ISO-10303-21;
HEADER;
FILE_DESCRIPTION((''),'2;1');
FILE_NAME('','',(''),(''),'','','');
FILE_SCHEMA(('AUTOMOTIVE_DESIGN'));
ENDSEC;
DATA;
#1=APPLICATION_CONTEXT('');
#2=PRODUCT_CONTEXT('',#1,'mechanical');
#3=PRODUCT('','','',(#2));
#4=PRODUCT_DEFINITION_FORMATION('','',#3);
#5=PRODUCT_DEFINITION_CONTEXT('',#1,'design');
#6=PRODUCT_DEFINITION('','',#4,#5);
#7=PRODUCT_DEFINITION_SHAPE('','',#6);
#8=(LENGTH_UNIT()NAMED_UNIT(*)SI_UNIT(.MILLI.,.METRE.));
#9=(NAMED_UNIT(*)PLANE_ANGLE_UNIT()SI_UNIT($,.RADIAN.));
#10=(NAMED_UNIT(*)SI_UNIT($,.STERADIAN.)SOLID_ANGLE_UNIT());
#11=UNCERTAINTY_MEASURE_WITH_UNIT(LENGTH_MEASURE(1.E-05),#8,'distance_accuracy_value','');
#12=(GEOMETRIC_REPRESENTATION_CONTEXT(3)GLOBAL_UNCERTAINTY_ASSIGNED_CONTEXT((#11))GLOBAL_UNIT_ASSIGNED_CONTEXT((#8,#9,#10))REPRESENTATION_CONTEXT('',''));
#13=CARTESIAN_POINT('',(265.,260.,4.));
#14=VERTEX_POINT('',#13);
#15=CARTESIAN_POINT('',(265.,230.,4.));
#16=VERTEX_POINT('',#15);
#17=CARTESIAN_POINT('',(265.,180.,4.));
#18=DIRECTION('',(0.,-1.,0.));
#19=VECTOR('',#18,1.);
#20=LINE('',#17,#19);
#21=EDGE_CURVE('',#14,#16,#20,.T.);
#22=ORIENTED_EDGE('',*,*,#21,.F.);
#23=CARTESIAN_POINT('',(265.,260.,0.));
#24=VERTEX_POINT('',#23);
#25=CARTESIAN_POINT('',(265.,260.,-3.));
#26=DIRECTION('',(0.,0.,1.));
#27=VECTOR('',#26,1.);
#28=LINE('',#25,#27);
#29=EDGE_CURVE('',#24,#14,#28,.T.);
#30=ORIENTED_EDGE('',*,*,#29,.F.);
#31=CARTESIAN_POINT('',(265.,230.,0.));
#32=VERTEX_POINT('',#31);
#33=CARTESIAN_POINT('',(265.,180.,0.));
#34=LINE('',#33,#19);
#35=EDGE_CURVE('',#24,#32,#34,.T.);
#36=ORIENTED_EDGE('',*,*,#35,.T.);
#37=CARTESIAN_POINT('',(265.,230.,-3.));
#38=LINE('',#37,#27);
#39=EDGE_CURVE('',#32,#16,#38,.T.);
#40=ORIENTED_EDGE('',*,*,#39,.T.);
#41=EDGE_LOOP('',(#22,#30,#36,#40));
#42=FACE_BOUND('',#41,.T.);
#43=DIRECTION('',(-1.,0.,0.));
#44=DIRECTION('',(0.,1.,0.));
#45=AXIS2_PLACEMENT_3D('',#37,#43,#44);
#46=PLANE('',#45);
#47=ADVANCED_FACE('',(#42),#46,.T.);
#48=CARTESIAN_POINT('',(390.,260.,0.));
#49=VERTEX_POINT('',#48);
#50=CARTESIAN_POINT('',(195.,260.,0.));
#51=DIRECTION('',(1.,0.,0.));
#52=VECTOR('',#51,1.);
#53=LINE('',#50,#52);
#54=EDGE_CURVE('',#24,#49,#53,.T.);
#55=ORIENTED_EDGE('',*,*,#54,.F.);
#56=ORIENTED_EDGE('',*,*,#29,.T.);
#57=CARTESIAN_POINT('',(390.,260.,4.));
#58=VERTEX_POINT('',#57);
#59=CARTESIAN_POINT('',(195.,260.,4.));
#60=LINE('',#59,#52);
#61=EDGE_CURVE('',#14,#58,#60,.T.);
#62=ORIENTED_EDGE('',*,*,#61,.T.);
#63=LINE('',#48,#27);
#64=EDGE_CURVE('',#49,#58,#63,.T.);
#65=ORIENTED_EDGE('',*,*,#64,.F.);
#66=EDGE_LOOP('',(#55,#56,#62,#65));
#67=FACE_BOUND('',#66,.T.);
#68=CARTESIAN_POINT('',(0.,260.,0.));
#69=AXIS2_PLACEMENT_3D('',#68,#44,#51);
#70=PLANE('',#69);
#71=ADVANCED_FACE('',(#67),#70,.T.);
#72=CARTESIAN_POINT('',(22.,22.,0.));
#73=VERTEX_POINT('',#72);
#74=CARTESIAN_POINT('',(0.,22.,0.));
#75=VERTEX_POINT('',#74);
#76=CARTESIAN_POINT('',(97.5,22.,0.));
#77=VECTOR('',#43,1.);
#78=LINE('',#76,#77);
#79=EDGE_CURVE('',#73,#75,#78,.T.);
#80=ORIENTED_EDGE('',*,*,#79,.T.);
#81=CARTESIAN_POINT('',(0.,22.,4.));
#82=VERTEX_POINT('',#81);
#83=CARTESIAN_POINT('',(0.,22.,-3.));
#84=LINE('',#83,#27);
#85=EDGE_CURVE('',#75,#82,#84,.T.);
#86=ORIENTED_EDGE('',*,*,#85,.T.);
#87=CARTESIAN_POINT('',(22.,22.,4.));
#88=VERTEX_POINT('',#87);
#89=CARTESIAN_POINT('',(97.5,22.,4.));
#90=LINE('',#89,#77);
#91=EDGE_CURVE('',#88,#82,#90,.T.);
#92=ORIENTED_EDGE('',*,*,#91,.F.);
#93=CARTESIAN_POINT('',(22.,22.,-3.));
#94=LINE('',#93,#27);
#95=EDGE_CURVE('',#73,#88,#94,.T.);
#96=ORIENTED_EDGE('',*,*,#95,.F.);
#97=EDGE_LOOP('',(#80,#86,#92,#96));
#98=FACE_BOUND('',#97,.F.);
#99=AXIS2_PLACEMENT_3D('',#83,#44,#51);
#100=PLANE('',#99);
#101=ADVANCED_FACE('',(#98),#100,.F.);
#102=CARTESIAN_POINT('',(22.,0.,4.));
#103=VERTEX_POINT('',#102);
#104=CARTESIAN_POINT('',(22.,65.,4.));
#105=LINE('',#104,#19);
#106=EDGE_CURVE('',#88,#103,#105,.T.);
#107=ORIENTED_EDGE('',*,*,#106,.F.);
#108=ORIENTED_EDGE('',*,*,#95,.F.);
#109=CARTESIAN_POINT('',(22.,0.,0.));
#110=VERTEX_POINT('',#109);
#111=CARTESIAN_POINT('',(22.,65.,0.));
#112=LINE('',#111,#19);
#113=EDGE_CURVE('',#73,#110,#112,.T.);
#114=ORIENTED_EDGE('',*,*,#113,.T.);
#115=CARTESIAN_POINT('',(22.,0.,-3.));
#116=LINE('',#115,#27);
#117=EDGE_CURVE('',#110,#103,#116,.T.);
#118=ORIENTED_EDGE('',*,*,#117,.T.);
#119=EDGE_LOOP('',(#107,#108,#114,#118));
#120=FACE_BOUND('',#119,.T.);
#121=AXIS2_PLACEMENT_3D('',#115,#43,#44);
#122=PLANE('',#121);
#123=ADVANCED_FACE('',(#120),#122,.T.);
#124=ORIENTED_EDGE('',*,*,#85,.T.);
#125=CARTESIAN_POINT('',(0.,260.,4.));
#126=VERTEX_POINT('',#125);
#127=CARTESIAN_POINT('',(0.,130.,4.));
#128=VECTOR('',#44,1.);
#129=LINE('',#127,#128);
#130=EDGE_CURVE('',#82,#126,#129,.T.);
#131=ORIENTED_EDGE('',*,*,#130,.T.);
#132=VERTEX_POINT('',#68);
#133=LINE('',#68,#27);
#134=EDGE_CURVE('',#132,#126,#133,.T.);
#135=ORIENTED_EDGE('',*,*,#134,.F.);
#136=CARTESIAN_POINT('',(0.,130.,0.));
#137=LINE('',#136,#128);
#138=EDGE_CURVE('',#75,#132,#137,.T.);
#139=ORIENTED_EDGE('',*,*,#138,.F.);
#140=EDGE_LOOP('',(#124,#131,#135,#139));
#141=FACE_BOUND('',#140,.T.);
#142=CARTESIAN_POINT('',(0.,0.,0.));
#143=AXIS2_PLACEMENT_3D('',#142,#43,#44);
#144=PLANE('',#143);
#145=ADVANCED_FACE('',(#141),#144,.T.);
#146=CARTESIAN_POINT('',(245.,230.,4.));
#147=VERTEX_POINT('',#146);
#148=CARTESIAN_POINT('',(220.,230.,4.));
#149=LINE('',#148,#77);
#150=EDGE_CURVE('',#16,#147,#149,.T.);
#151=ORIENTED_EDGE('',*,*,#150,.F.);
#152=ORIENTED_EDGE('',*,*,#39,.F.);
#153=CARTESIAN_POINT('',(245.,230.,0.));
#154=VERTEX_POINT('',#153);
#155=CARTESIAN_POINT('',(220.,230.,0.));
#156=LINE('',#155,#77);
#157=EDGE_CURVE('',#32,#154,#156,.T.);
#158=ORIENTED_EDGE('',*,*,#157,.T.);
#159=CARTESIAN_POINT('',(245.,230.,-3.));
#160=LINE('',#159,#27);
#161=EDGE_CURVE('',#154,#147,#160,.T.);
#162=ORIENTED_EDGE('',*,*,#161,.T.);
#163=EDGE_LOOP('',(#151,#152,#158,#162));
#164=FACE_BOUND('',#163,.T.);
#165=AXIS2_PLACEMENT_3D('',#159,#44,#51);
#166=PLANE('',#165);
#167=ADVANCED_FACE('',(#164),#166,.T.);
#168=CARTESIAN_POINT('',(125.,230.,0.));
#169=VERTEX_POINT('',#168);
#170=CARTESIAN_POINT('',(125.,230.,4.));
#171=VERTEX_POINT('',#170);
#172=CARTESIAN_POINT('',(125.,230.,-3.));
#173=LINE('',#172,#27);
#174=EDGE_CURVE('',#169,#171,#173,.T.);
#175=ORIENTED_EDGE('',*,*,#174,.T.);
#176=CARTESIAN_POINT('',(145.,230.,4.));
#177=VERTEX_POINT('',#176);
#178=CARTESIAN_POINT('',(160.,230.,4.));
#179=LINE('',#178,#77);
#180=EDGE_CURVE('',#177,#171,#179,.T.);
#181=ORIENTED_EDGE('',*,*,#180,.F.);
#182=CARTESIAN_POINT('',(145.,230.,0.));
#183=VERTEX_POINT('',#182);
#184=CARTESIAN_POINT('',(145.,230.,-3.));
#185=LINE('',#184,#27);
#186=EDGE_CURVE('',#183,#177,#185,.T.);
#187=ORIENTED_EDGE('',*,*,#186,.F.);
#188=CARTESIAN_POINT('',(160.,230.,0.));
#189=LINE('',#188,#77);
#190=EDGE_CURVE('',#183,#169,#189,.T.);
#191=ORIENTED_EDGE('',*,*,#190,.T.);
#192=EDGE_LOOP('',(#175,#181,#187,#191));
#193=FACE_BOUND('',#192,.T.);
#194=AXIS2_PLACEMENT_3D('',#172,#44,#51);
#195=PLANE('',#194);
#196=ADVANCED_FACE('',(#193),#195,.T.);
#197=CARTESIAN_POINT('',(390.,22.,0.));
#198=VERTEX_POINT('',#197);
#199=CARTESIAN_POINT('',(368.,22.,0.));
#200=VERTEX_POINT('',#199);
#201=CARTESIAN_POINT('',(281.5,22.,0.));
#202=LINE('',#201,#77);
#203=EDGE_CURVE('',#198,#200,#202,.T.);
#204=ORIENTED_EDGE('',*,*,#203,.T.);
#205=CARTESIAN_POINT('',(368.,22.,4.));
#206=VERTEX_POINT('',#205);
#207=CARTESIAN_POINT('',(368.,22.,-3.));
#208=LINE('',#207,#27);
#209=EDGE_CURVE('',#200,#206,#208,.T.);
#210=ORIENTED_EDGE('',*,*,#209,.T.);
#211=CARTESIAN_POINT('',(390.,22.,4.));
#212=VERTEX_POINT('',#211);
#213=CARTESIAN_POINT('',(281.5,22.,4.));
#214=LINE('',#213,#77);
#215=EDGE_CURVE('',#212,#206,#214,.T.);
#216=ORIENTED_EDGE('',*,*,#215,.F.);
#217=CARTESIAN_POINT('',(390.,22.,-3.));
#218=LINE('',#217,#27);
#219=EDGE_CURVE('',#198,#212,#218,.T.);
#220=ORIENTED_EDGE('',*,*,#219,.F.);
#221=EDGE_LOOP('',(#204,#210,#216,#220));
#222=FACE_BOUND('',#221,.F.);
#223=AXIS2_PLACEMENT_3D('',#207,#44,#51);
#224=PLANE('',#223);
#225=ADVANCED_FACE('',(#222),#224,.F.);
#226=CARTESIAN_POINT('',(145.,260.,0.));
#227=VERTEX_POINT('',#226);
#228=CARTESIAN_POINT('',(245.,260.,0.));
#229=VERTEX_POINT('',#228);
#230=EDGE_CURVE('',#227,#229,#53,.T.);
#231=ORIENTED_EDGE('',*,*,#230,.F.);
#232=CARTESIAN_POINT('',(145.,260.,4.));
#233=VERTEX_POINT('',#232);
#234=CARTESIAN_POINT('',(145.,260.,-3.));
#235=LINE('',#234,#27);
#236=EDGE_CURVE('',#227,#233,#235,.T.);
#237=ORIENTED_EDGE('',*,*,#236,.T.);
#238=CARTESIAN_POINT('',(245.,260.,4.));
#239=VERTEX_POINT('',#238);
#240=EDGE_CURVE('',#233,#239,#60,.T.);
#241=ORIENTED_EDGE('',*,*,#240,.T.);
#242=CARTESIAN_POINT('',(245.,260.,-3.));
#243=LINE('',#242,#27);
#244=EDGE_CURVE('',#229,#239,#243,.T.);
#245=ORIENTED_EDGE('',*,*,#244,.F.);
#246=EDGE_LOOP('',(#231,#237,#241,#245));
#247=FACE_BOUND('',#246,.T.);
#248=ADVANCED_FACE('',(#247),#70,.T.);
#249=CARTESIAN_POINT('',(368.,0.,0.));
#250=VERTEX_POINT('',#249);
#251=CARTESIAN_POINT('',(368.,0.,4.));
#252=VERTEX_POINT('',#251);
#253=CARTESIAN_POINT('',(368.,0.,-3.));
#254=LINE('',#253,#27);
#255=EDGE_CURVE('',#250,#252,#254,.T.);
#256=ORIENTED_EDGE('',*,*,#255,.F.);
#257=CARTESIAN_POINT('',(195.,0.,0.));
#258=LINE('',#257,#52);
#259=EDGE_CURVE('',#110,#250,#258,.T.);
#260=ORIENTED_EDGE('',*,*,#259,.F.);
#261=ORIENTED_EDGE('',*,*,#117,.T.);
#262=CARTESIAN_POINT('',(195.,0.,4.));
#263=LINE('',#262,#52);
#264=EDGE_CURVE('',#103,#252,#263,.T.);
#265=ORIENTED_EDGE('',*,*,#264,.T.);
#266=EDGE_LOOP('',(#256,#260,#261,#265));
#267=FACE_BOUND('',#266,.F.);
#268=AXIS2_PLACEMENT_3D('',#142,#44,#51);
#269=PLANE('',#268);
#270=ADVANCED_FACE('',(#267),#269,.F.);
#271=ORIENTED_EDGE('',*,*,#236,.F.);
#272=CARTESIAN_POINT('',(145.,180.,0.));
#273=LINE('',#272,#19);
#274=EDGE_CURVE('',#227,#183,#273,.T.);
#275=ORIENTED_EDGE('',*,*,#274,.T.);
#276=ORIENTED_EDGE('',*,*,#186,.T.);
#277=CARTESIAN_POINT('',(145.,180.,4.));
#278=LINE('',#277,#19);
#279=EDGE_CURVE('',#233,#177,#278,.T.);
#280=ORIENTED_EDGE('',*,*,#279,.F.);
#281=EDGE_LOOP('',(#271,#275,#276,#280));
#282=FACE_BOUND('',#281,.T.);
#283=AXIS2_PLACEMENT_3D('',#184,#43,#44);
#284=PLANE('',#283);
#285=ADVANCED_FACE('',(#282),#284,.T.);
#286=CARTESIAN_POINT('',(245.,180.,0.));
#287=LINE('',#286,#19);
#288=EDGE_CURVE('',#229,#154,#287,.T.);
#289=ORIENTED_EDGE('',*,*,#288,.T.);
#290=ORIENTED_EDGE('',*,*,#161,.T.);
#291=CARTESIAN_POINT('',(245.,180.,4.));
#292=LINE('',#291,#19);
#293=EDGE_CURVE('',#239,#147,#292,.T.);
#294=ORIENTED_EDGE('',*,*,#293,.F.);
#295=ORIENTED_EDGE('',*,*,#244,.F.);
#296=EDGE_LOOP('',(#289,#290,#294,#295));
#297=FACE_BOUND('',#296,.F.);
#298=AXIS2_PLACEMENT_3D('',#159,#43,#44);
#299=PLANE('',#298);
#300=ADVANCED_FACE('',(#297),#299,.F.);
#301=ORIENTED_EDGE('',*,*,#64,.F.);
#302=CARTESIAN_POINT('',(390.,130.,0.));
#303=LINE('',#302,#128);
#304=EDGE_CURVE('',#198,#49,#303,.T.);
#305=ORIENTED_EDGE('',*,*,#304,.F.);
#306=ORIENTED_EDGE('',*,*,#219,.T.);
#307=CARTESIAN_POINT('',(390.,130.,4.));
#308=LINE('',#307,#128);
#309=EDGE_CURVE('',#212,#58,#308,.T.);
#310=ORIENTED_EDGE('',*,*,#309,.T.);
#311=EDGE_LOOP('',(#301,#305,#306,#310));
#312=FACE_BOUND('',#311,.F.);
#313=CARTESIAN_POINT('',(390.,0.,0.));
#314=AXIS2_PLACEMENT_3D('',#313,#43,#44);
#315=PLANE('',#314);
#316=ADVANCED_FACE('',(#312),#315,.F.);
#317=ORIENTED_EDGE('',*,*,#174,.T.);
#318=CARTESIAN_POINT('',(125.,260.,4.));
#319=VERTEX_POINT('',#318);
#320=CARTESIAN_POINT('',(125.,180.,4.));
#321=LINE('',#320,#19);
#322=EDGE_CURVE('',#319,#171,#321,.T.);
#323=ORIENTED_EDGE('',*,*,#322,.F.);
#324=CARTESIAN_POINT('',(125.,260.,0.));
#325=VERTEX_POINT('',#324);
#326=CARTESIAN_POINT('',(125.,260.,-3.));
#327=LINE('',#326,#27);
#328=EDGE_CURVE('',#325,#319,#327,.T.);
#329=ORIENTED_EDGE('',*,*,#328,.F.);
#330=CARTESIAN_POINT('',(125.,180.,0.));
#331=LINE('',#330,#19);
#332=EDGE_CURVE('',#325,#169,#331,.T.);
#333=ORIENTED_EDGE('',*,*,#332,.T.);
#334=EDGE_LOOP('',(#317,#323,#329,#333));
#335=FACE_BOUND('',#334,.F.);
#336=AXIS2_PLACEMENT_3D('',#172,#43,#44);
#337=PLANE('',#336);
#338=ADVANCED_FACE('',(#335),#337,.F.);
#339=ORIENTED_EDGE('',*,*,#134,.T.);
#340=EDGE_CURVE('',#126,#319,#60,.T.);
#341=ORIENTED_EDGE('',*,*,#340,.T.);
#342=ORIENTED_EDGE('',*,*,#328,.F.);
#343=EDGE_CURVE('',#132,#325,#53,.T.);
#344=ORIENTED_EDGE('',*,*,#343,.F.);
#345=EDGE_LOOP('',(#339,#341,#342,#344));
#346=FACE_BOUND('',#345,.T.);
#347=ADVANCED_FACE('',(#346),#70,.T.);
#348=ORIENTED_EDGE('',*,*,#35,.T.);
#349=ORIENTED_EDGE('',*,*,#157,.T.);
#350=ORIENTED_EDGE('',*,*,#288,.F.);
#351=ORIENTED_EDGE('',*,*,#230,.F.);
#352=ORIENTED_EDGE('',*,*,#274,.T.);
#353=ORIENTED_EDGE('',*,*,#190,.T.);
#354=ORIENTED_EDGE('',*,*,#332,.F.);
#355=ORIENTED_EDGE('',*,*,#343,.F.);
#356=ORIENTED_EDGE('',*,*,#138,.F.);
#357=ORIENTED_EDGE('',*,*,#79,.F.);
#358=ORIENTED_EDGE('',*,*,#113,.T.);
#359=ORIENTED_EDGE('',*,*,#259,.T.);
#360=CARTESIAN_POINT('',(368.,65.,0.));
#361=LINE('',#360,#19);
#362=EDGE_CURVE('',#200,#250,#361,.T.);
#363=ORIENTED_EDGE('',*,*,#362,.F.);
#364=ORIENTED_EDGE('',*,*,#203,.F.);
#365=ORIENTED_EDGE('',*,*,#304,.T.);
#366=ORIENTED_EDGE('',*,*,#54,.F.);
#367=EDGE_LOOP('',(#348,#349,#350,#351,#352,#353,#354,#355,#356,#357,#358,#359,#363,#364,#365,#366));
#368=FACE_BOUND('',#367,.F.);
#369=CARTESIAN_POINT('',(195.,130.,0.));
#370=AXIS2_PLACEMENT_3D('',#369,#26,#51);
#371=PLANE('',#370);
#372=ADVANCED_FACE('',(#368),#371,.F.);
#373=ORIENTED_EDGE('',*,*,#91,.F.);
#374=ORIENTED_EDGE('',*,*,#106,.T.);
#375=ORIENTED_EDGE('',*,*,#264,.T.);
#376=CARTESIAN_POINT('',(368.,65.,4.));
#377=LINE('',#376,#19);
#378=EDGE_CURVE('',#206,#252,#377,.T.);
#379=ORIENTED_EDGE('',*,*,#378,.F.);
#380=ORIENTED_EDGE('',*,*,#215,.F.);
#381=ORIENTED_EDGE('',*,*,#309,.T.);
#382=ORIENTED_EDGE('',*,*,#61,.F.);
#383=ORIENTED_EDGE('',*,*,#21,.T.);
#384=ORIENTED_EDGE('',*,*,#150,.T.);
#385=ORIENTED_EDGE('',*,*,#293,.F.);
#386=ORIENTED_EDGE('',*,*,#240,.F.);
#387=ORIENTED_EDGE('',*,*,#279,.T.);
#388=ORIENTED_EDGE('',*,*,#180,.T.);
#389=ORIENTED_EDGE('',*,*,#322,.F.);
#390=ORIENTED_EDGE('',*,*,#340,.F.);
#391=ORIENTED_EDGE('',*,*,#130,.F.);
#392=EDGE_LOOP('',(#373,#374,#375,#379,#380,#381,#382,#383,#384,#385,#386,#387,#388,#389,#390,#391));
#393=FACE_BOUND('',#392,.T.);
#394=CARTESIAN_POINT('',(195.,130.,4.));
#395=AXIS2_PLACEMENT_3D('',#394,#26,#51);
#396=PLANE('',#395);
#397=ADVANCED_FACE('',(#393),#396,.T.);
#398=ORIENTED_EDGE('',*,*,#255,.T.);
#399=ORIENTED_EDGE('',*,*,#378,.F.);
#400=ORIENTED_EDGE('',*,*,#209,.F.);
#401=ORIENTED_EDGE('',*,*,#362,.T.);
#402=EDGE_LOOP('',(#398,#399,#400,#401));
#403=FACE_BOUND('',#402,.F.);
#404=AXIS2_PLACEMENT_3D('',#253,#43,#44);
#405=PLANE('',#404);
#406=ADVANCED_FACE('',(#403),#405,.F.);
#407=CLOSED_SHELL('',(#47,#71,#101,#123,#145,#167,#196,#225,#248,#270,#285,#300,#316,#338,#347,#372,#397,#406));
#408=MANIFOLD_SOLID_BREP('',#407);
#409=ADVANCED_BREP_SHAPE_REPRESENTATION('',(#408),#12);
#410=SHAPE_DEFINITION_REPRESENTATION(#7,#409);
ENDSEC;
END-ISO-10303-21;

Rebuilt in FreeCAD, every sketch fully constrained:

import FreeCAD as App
import Part
import Sketcher

V = App.Vector


def add_polygon(sketch, points):
    """Adds a closed chain of lines whose ends are joined by coincident constraints."""
    first, n = sketch.GeometryCount, len(points)
    for a, b in zip(points, points[1:] + points[:1]):
        sketch.addGeometry(Part.LineSegment(App.Vector(*a, 0), App.Vector(*b, 0)), False)
    for i in range(n):
        sketch.addConstraint(Sketcher.Constraint("Coincident", first + i, 2, first + (i + 1) % n, 1))

doc = App.newDocument("Part")
body = doc.addObject("PartDesign::Body", "Body")

# Sketch on XY plane
sketch1 = doc.addObject("Sketcher::SketchObject", "Sketch")
body.addObject(sketch1)
sketch1.AttachmentSupport = (doc.XY_Plane, [""])
sketch1.MapMode = "FlatFace"
sketch1.AttachmentOffset = App.Placement(V(0, 0, -3), App.Rotation())
add_polygon(sketch1, [(245, 260), (245, 230), (265, 230), (265, 260)])  # lines 0-3
sketch1.addConstraint([
    Sketcher.Constraint("Vertical", 0),
    Sketcher.Constraint("Horizontal", 1),
    Sketcher.Constraint("Vertical", 2),
    Sketcher.Constraint("Horizontal", 3),
    Sketcher.Constraint("DistanceX", 1, 1, 1, 2, 20.0),
    Sketcher.Constraint("DistanceY", 0, 2, 0, 1, 30.0),
    Sketcher.Constraint("DistanceX", -1, 1, 0, 2, 245.0),
    Sketcher.Constraint("DistanceY", -1, 1, 0, 2, 230.0),
])
pad1 = doc.addObject("PartDesign::Pad", "Pad")
body.addObject(pad1)
pad1.Profile = sketch1
pad1.Length = 10
body2 = doc.addObject("PartDesign::Body", "Body001")

# Sketch on XY plane
sketch2 = doc.addObject("Sketcher::SketchObject", "Sketch001")
body2.addObject(sketch2)
sketch2.AttachmentSupport = (doc.getObject("XY_Plane001"), [""])
sketch2.MapMode = "FlatFace"
sketch2.AttachmentOffset = App.Placement(V(0, 0, -3), App.Rotation())
add_polygon(sketch2, [(125, 260), (125, 230), (145, 230), (145, 260)])  # lines 0-3
sketch2.addConstraint([
    Sketcher.Constraint("Vertical", 0),
    Sketcher.Constraint("Horizontal", 1),
    Sketcher.Constraint("Vertical", 2),
    Sketcher.Constraint("Horizontal", 3),
    Sketcher.Constraint("DistanceX", 1, 1, 1, 2, 20.0),
    Sketcher.Constraint("DistanceY", 0, 2, 0, 1, 30.0),
    Sketcher.Constraint("DistanceX", -1, 1, 0, 2, 125.0),
    Sketcher.Constraint("DistanceY", -1, 1, 0, 2, 230.0),
])
pad2 = doc.addObject("PartDesign::Pad", "Pad001")
body2.addObject(pad2)
pad2.Profile = sketch2
pad2.Length = 10
body3 = doc.addObject("PartDesign::Body", "Body002")

# Sketch on XY plane
sketch3 = doc.addObject("Sketcher::SketchObject", "Sketch002")
body3.addObject(sketch3)
sketch3.AttachmentSupport = (doc.getObject("XY_Plane002"), [""])
sketch3.MapMode = "FlatFace"
sketch3.AttachmentOffset = App.Placement(V(0, 0, -3), App.Rotation())
add_polygon(sketch3, [(368, 22), (368, 0), (390, 0), (390, 22)])  # lines 0-3
sketch3.addConstraint([
    Sketcher.Constraint("Vertical", 0),
    Sketcher.Constraint("Horizontal", 1),
    Sketcher.Constraint("Vertical", 2),
    Sketcher.Constraint("Horizontal", 3),
    Sketcher.Constraint("PointOnObject", 0, 2, -1),
    Sketcher.Constraint("Equal", 3, 0),
    Sketcher.Constraint("DistanceX", 1, 1, 1, 2, 22.0),
    Sketcher.Constraint("DistanceX", -1, 1, 0, 2, 368.0),
])
pad3 = doc.addObject("PartDesign::Pad", "Pad002")
body3.addObject(pad3)
pad3.Profile = sketch3
pad3.Length = 10
body4 = doc.addObject("PartDesign::Body", "Body003")

# Sketch on XY plane
sketch4 = doc.addObject("Sketcher::SketchObject", "Sketch003")
body4.addObject(sketch4)
sketch4.AttachmentSupport = (doc.getObject("XY_Plane003"), [""])
sketch4.MapMode = "FlatFace"
sketch4.AttachmentOffset = App.Placement(V(0, 0, -3), App.Rotation())
add_polygon(sketch4, [(0, 22), (0, 0), (22, 0), (22, 22)])  # lines 0-3
sketch4.addConstraint([
    Sketcher.Constraint("Vertical", 0),
    Sketcher.Constraint("Horizontal", 1),
    Sketcher.Constraint("Vertical", 2),
    Sketcher.Constraint("Horizontal", 3),
    Sketcher.Constraint("Coincident", 0, 2, -1, 1),
    Sketcher.Constraint("Equal", 3, 0),
    Sketcher.Constraint("DistanceX", 1, 1, 1, 2, 22.0),
])
pad4 = doc.addObject("PartDesign::Pad", "Pad003")
body4.addObject(pad4)
pad4.Profile = sketch4
pad4.Length = 10
body5 = doc.addObject("PartDesign::Body", "Body004")

# Sketch on XY plane
sketch5 = doc.addObject("Sketcher::SketchObject", "Sketch004")
body5.addObject(sketch5)
sketch5.AttachmentSupport = (doc.getObject("XY_Plane004"), [""])
sketch5.MapMode = "FlatFace"
add_polygon(sketch5, [(0, 260), (0, 0), (390, 0), (390, 260)])  # lines 0-3
sketch5.addConstraint([
    Sketcher.Constraint("Vertical", 0),
    Sketcher.Constraint("Horizontal", 1),
    Sketcher.Constraint("Vertical", 2),
    Sketcher.Constraint("Horizontal", 3),
    Sketcher.Constraint("Coincident", 0, 2, -1, 1),
    Sketcher.Constraint("DistanceX", 1, 1, 1, 2, 390.0),
    Sketcher.Constraint("DistanceY", 0, 2, 0, 1, 260.0),
])
pad5 = doc.addObject("PartDesign::Pad", "Pad004")
body5.addObject(pad5)
pad5.Profile = sketch5
pad5.Length = 4
doc.recompute()

boolean = doc.addObject("PartDesign::Boolean", "Boolean")
body5.addObject(boolean)
boolean.Type = "Cut"
boolean.addObjects([body4])
doc.recompute()

boolean2 = doc.addObject("PartDesign::Boolean", "Boolean001")
body5.addObject(boolean2)
boolean2.Type = "Cut"
boolean2.addObjects([body3])
doc.recompute()

boolean3 = doc.addObject("PartDesign::Boolean", "Boolean002")
body5.addObject(boolean3)
boolean3.Type = "Cut"
boolean3.addObjects([body2])
doc.recompute()

boolean4 = doc.addObject("PartDesign::Boolean", "Boolean003")
body5.addObject(boolean4)
boolean4.Type = "Cut"
boolean4.addObjects([body])

doc.recompute()
